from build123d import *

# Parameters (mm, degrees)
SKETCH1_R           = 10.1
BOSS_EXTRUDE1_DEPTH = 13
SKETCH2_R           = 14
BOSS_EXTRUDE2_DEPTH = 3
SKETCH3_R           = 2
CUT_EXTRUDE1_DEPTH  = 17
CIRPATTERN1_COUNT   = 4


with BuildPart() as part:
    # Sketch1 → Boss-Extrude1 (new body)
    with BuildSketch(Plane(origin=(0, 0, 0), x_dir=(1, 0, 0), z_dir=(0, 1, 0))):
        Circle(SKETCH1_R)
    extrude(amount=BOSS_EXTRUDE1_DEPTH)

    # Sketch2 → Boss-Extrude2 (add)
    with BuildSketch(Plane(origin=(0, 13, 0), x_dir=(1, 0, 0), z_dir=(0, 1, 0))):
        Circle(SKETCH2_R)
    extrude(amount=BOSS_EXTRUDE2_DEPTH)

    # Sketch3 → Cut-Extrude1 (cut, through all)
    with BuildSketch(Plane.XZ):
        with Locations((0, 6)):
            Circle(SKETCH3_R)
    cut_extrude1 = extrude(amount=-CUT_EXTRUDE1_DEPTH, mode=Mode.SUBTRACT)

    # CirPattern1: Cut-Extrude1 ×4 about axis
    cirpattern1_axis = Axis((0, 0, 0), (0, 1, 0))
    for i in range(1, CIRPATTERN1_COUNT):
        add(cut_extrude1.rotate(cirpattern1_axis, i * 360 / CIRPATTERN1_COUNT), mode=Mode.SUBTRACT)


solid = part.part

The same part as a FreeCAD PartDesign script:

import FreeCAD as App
import Part
import Sketcher

V = App.Vector

doc = App.newDocument("Part")
body = doc.addObject("PartDesign::Body", "Body")

# Sketch on XZ plane
sketch1 = body.newObject("Sketcher::SketchObject", "Sketch")
sketch1.AttachmentSupport = (doc.getObject("XZ_Plane"), [""])
sketch1.MapMode = "FlatFace"
sketch1.addGeometry(Part.Circle(V(0, 0, 0), V(0, 0, 1), 10), False)
sketch1.addConstraint(Sketcher.Constraint("Coincident", 0, 3, -1, 1))
sketch1.addConstraint(Sketcher.Constraint("Diameter", 0, 20.2))
pad1 = body.newObject("PartDesign::Pad", "Pad")
pad1.Profile = sketch1
pad1.Length = 13
pad1.Reversed = True

# Sketch on XZ plane
sketch2 = body.newObject("Sketcher::SketchObject", "Sketch001")
sketch2.AttachmentSupport = (doc.getObject("XZ_Plane"), [""])
sketch2.MapMode = "FlatFace"
sketch2.AttachmentOffset = App.Placement(V(0, 0, -13), App.Rotation())
sketch2.addGeometry(Part.Circle(V(0, 0, 0), V(0, 0, 1), 14), False)
sketch2.addConstraint(Sketcher.Constraint("Coincident", 0, 3, -1, 1))
sketch2.addConstraint(Sketcher.Constraint("Diameter", 0, 28.0))
pad2 = body.newObject("PartDesign::Pad", "Pad001")
pad2.Profile = sketch2
pad2.Length = 3
pad2.Reversed = True

# Sketch on XZ plane
sketch3 = body.newObject("Sketcher::SketchObject", "Sketch002")
sketch3.AttachmentSupport = (doc.getObject("XZ_Plane"), [""])
sketch3.MapMode = "FlatFace"
sketch3.addGeometry(Part.Circle(V(0, 6, 0), V(0, 0, 1), 2), False)
sketch3.addConstraint(Sketcher.Constraint("PointOnObject", 0, 3, -2))
sketch3.addConstraint(Sketcher.Constraint("Diameter", 0, 4.0))
sketch3.addConstraint(Sketcher.Constraint("DistanceY", -1, 1, 0, 3, 6.0))
pocket1 = body.newObject("PartDesign::Pocket", "Pocket")
pocket1.Profile = sketch3
pocket1.Type = "ThroughAll"
doc.recompute()

polarpattern = body.newObject("PartDesign::PolarPattern", "PolarPattern")
polarpattern.Originals = [pocket1]
polarpattern.Axis = (doc.getObject("Y_Axis"), [""])
polarpattern.Angle = 360
polarpattern.Occurrences = 4
body.Tip = polarpattern

doc.recompute()
